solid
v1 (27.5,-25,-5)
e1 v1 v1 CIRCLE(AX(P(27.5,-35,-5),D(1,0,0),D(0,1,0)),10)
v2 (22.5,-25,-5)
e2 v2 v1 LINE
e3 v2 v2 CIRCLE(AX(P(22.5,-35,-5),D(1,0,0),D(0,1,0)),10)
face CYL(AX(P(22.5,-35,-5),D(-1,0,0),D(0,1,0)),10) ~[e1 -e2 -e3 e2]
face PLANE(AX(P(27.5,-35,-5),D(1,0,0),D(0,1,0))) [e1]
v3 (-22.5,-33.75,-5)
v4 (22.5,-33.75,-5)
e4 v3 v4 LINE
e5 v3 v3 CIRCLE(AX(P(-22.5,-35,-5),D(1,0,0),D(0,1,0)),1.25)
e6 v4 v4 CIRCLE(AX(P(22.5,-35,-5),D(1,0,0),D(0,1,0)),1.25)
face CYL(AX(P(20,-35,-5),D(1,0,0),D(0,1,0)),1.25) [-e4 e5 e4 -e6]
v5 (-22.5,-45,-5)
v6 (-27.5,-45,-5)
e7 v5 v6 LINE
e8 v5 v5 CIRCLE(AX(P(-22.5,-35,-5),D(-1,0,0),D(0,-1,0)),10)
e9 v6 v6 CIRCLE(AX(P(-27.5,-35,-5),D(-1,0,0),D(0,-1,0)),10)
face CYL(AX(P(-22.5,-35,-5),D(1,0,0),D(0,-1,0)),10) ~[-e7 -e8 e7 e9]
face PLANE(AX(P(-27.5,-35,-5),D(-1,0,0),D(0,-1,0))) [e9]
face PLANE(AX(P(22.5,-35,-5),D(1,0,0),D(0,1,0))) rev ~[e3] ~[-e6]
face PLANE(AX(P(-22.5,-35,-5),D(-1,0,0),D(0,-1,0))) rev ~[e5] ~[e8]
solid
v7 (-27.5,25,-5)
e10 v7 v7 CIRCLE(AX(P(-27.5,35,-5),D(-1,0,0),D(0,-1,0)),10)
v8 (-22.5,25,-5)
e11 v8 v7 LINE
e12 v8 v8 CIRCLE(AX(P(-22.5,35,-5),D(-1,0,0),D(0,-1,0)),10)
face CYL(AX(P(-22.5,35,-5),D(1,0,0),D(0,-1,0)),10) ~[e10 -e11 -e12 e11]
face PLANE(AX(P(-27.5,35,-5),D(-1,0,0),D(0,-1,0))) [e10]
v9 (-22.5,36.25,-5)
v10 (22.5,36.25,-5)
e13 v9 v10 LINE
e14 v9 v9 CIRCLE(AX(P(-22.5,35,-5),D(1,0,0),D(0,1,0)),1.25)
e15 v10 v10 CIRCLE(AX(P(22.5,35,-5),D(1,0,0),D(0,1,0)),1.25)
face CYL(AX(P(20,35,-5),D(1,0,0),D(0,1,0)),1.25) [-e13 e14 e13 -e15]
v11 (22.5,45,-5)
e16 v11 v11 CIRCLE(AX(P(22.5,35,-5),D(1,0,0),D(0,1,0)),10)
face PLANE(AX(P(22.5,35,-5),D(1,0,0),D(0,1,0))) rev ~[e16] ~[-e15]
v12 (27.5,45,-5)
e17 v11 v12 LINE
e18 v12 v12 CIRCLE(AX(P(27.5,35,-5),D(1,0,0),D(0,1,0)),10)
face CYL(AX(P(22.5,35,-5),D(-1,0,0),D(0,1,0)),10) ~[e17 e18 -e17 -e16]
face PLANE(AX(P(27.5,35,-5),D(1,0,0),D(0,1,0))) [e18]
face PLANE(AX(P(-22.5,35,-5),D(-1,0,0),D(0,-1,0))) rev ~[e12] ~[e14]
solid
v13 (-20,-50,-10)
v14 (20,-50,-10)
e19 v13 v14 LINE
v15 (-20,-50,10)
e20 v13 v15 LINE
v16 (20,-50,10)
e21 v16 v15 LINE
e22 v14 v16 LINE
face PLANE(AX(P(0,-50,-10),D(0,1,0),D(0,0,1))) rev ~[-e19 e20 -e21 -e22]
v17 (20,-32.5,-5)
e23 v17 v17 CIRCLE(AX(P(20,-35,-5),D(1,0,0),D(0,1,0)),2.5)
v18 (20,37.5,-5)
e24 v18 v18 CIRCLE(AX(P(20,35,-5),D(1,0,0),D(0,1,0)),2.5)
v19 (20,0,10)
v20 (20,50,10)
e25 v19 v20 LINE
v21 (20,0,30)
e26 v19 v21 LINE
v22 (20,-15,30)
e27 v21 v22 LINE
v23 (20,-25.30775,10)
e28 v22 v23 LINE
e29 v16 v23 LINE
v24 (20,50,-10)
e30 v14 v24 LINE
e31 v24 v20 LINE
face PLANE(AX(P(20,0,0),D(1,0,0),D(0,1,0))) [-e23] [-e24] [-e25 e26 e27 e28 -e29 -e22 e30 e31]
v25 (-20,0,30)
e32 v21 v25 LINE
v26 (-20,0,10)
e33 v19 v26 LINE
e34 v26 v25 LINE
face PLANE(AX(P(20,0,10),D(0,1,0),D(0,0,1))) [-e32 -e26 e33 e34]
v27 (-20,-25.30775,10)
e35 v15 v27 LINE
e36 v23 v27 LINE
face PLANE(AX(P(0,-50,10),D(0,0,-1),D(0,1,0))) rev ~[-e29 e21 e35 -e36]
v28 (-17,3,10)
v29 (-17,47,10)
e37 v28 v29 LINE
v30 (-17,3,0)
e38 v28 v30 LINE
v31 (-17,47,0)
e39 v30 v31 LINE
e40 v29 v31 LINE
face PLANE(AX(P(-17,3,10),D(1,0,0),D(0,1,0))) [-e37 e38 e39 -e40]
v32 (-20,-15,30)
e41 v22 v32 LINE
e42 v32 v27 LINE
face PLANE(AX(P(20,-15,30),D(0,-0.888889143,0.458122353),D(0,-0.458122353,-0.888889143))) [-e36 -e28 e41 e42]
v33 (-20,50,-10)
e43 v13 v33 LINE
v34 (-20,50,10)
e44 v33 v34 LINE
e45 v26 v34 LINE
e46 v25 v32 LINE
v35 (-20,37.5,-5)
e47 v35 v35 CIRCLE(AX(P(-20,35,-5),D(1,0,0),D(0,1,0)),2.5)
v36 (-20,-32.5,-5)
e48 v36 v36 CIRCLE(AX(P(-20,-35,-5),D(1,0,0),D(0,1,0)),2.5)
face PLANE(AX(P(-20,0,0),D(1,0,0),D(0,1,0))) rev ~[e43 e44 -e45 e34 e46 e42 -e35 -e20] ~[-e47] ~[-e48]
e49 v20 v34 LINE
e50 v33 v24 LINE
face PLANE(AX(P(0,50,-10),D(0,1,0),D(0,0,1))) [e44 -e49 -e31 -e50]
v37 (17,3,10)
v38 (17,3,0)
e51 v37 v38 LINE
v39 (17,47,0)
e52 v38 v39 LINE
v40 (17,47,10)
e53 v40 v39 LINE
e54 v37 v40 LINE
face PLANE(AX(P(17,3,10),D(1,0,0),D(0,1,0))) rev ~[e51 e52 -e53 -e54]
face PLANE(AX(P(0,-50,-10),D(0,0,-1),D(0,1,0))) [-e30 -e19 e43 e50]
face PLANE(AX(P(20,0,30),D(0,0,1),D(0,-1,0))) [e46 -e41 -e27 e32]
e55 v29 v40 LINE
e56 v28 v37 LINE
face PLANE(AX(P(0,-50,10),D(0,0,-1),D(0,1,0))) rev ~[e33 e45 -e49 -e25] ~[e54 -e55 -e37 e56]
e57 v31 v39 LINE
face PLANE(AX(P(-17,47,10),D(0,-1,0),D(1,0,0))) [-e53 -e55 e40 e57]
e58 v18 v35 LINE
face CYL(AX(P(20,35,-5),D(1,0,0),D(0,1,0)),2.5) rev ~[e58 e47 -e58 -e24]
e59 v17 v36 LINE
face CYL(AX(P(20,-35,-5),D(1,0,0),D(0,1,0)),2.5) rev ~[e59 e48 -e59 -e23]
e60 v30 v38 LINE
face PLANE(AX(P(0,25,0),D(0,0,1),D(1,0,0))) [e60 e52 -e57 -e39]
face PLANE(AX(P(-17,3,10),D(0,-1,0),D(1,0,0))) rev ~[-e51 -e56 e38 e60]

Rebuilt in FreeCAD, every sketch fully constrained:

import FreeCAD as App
import Part
import Sketcher

doc = App.newDocument("Part")
body = doc.addObject("PartDesign::Body", "Body")

# Sketch on YZ plane
sketch1 = body.newObject("Sketcher::SketchObject", "Sketch")
sketch1.AttachmentSupport = (doc.getObject("YZ_Plane"), [""])
sketch1.MapMode = "FlatFace"
sketch1.addGeometry([
    Part.LineSegment(App.Vector(-50, 10, 0), App.Vector(-50, -10, 0)),
    Part.LineSegment(App.Vector(-50, -10, 0), App.Vector(50, -10, 0)),
    Part.LineSegment(App.Vector(50, -10, 0), App.Vector(50, 10, 0)),
    Part.LineSegment(App.Vector(50, 10, 0), App.Vector(-50, 10, 0)),
], False)
sketch1.addConstraint([
    Sketcher.Constraint("Coincident", 0, 2, 1, 1),
    Sketcher.Constraint("Coincident", 1, 2, 2, 1),
    Sketcher.Constraint("Coincident", 2, 2, 3, 1),
    Sketcher.Constraint("Coincident", 3, 2, 0, 1),
    Sketcher.Constraint("Vertical", 0),
    Sketcher.Constraint("Horizontal", 1),
    Sketcher.Constraint("Vertical", 2),
    Sketcher.Constraint("Horizontal", 3),
    Sketcher.Constraint("Symmetric", 0, 2, 2, 2, -1, 1),
    Sketcher.Constraint("DistanceX", 1, 1, 1, 2, 100.0),
    Sketcher.Constraint("DistanceY", 0, 2, 0, 1, 20.0),
])
pad1 = body.newObject("PartDesign::Pad", "Pad")
pad1.Profile = sketch1
pad1.Length = 40
pad1.Midplane = True

# Sketch on YZ plane
sketch2 = body.newObject("Sketcher::SketchObject", "Sketch001")
sketch2.AttachmentSupport = (doc.getObject("YZ_Plane"), [""])
sketch2.MapMode = "FlatFace"
sketch2.AttachmentOffset = App.Placement(App.Vector(0, 0, 20), App.Rotation())
sketch2.addGeometry([
    Part.LineSegment(App.Vector(-25, 10, 0), App.Vector(0, 10, 0)),
    Part.LineSegment(App.Vector(0, 10, 0), App.Vector(0, 30, 0)),
    Part.LineSegment(App.Vector(0, 30, 0), App.Vector(-15, 30, 0)),
    Part.LineSegment(App.Vector(-15, 30, 0), App.Vector(-25, 10, 0)),
], False)
sketch2.addConstraint([
    Sketcher.Constraint("Coincident", 0, 2, 1, 1),
    Sketcher.Constraint("Coincident", 1, 2, 2, 1),
    Sketcher.Constraint("Coincident", 2, 2, 3, 1),
    Sketcher.Constraint("Coincident", 3, 2, 0, 1),
    Sketcher.Constraint("Horizontal", 0),
    Sketcher.Constraint("Vertical", 1),
    Sketcher.Constraint("Horizontal", 2),
    Sketcher.Constraint("PointOnObject", 0, 2, -2),
    Sketcher.Constraint("DistanceX", 2, 2, 2, 1, 15.0),
    Sketcher.Constraint("DistanceY", 1, 1, 1, 2, 20.0),
    Sketcher.Constraint("DistanceY", -1, 1, 0, 2, 10.0),
    Sketcher.Constraint("DistanceX", 0, 1, 0, 2, 25.30775),
])
pad2 = body.newObject("PartDesign::Pad", "Pad001")
pad2.Profile = sketch2
pad2.Length = 40
pad2.Reversed = True

# Sketch on YZ plane
sketch3 = body.newObject("Sketcher::SketchObject", "Sketch002")
sketch3.AttachmentSupport = (doc.getObject("YZ_Plane"), [""])
sketch3.MapMode = "FlatFace"
sketch3.AttachmentOffset = App.Placement(App.Vector(0, 0, 20), App.Rotation())
sketch3.addGeometry(Part.Circle(App.Vector(-35, -5, 0), App.Vector(0, 0, 1), 2.5), False)
sketch3.addConstraint([
    Sketcher.Constraint("Diameter", 0, 5.0),
    Sketcher.Constraint("DistanceX", 0, 3, -1, 1, 35.0),
    Sketcher.Constraint("DistanceY", 0, 3, -1, 1, 5.0),
])
pocket1 = body.newObject("PartDesign::Pocket", "Pocket")
pocket1.Profile = sketch3
pocket1.Type = "ThroughAll"

# Sketch on YZ plane
sketch4 = body.newObject("Sketcher::SketchObject", "Sketch003")
sketch4.AttachmentSupport = (doc.getObject("YZ_Plane"), [""])
sketch4.MapMode = "FlatFace"
sketch4.AttachmentOffset = App.Placement(App.Vector(0, 0, 20), App.Rotation())
sketch4.addGeometry(Part.Circle(App.Vector(35, -5, 0), App.Vector(0, 0, 1), 2.5), False)
sketch4.addConstraint([
    Sketcher.Constraint("Diameter", 0, 5.0),
    Sketcher.Constraint("DistanceX", -1, 1, 0, 3, 35.0),
    Sketcher.Constraint("DistanceY", 0, 3, -1, 1, 5.0),
])
pocket2 = body.newObject("PartDesign::Pocket", "Pocket001")
pocket2.Profile = sketch4
pocket2.Type = "ThroughAll"

# Sketch on XY plane
sketch5 = body.newObject("Sketcher::SketchObject", "Sketch004")
sketch5.AttachmentSupport = (doc.getObject("XY_Plane"), [""])
sketch5.MapMode = "FlatFace"
sketch5.AttachmentOffset = App.Placement(App.Vector(0, 0, 10), App.Rotation())
sketch5.addGeometry([
    Part.LineSegment(App.Vector(-17, 47, 0), App.Vector(-17, 3, 0)),
    Part.LineSegment(App.Vector(-17, 3, 0), App.Vector(17, 3, 0)),
    Part.LineSegment(App.Vector(17, 3, 0), App.Vector(17, 47, 0)),
    Part.LineSegment(App.Vector(17, 47, 0), App.Vector(-17, 47, 0)),
], False)
sketch5.addConstraint([
    Sketcher.Constraint("Coincident", 0, 2, 1, 1),
    Sketcher.Constraint("Coincident", 1, 2, 2, 1),
    Sketcher.Constraint("Coincident", 2, 2, 3, 1),
    Sketcher.Constraint("Coincident", 3, 2, 0, 1),
    Sketcher.Constraint("Vertical", 0),
    Sketcher.Constraint("Horizontal", 1),
    Sketcher.Constraint("Vertical", 2),
    Sketcher.Constraint("Horizontal", 3),
    Sketcher.Constraint("DistanceX", 1, 1, 1, 2, 34.0),
    Sketcher.Constraint("DistanceY", 0, 2, 0, 1, 44.0),
    Sketcher.Constraint("DistanceX", 0, 2, -1, 1, 17.0),
    Sketcher.Constraint("DistanceY", -1, 1, 0, 2, 3.0),
])
pocket3 = body.newObject("PartDesign::Pocket", "Pocket002")
pocket3.Profile = sketch5
pocket3.Length = 10
body2 = doc.addObject("PartDesign::Body", "Body001")

# Sketch on YZ plane
sketch6 = body2.newObject("Sketcher::SketchObject", "Sketch005")
sketch6.AttachmentSupport = (doc.getObject("YZ_Plane001"), [""])
sketch6.MapMode = "FlatFace"
sketch6.AttachmentOffset = App.Placement(App.Vector(0, 0, 20), App.Rotation())
sketch6.addGeometry(Part.Circle(App.Vector(-35, -5, 0), App.Vector(0, 0, 1), 1.2), False)
sketch6.addConstraint([
    Sketcher.Constraint("Diameter", 0, 2.5),
    Sketcher.Constraint("DistanceX", 0, 3, -1, 1, 35.0),
    Sketcher.Constraint("DistanceY", 0, 3, -1, 1, 5.0),
])
pad3 = body2.newObject("PartDesign::Pad", "Pad002")
pad3.Profile = sketch6
pad3.Type = "TwoLengths"
pad3.Length = 2.5
pad3.Length2 = 42.5

# Sketch on YZ plane
sketch7 = body2.newObject("Sketcher::SketchObject", "Sketch006")
sketch7.AttachmentSupport = (doc.getObject("YZ_Plane001"), [""])
sketch7.MapMode = "FlatFace"
sketch7.AttachmentOffset = App.Placement(App.Vector(0, 0, 22.5), App.Rotation())
sketch7.addGeometry(Part.Circle(App.Vector(-35, -5, 0), App.Vector(0, 0, 1), 10), False)
sketch7.addConstraint([
    Sketcher.Constraint("Diameter", 0, 20.0),
    Sketcher.Constraint("DistanceX", 0, 3, -1, 1, 35.0),
    Sketcher.Constraint("DistanceY", 0, 3, -1, 1, 5.0),
])
pad4 = body2.newObject("PartDesign::Pad", "Pad003")
pad4.Profile = sketch7
pad4.Length = 5

# Sketch on YZ plane
sketch8 = body2.newObject("Sketcher::SketchObject", "Sketch007")
sketch8.AttachmentSupport = (doc.getObject("YZ_Plane001"), [""])
sketch8.MapMode = "FlatFace"
sketch8.AttachmentOffset = App.Placement(App.Vector(0, 0, -22.5), App.Rotation())
sketch8.addGeometry(Part.Circle(App.Vector(-35, -5, 0), App.Vector(0, 0, 1), 10), False)
sketch8.addConstraint([
    Sketcher.Constraint("Diameter", 0, 20.0),
    Sketcher.Constraint("DistanceX", 0, 3, -1, 1, 35.0),
    Sketcher.Constraint("DistanceY", 0, 3, -1, 1, 5.0),
])
pad5 = body2.newObject("PartDesign::Pad", "Pad004")
pad5.Profile = sketch8
pad5.Length = 5
pad5.Reversed = True
body3 = doc.addObject("PartDesign::Body", "Body002")

# Sketch on YZ plane
sketch9 = body3.newObject("Sketcher::SketchObject", "Sketch008")
sketch9.AttachmentSupport = (doc.getObject("YZ_Plane002"), [""])
sketch9.MapMode = "FlatFace"
sketch9.AttachmentOffset = App.Placement(App.Vector(0, 0, 20), App.Rotation())
sketch9.addGeometry(Part.Circle(App.Vector(35, -5, 0), App.Vector(0, 0, 1), 1.2), False)
sketch9.addConstraint([
    Sketcher.Constraint("Diameter", 0, 2.5),
    Sketcher.Constraint("DistanceX", -1, 1, 0, 3, 35.0),
    Sketcher.Constraint("DistanceY", 0, 3, -1, 1, 5.0),
])
pad6 = body3.newObject("PartDesign::Pad", "Pad005")
pad6.Profile = sketch9
pad6.Type = "TwoLengths"
pad6.Length = 2.5
pad6.Length2 = 42.5

# Sketch on YZ plane
sketch10 = body3.newObject("Sketcher::SketchObject", "Sketch009")
sketch10.AttachmentSupport = (doc.getObject("YZ_Plane002"), [""])
sketch10.MapMode = "FlatFace"
sketch10.AttachmentOffset = App.Placement(App.Vector(0, 0, -22.5), App.Rotation())
sketch10.addGeometry(Part.Circle(App.Vector(35, -5, 0), App.Vector(0, 0, 1), 10), False)
sketch10.addConstraint([
    Sketcher.Constraint("Diameter", 0, 20.0),
    Sketcher.Constraint("DistanceX", -1, 1, 0, 3, 35.0),
    Sketcher.Constraint("DistanceY", 0, 3, -1, 1, 5.0),
])
pad7 = body3.newObject("PartDesign::Pad", "Pad006")
pad7.Profile = sketch10
pad7.Length = 5
pad7.Reversed = True

# Sketch on YZ plane
sketch11 = body3.newObject("Sketcher::SketchObject", "Sketch010")
sketch11.AttachmentSupport = (doc.getObject("YZ_Plane002"), [""])
sketch11.MapMode = "FlatFace"
sketch11.AttachmentOffset = App.Placement(App.Vector(0, 0, 22.5), App.Rotation())
sketch11.addGeometry(Part.Circle(App.Vector(35, -5, 0), App.Vector(0, 0, 1), 10), False)
sketch11.addConstraint([
    Sketcher.Constraint("Diameter", 0, 20.0),
    Sketcher.Constraint("DistanceX", -1, 1, 0, 3, 35.0),
    Sketcher.Constraint("DistanceY", 0, 3, -1, 1, 5.0),
])
pad8 = body3.newObject("PartDesign::Pad", "Pad007")
pad8.Profile = sketch11
pad8.Length = 5

doc.recompute()
